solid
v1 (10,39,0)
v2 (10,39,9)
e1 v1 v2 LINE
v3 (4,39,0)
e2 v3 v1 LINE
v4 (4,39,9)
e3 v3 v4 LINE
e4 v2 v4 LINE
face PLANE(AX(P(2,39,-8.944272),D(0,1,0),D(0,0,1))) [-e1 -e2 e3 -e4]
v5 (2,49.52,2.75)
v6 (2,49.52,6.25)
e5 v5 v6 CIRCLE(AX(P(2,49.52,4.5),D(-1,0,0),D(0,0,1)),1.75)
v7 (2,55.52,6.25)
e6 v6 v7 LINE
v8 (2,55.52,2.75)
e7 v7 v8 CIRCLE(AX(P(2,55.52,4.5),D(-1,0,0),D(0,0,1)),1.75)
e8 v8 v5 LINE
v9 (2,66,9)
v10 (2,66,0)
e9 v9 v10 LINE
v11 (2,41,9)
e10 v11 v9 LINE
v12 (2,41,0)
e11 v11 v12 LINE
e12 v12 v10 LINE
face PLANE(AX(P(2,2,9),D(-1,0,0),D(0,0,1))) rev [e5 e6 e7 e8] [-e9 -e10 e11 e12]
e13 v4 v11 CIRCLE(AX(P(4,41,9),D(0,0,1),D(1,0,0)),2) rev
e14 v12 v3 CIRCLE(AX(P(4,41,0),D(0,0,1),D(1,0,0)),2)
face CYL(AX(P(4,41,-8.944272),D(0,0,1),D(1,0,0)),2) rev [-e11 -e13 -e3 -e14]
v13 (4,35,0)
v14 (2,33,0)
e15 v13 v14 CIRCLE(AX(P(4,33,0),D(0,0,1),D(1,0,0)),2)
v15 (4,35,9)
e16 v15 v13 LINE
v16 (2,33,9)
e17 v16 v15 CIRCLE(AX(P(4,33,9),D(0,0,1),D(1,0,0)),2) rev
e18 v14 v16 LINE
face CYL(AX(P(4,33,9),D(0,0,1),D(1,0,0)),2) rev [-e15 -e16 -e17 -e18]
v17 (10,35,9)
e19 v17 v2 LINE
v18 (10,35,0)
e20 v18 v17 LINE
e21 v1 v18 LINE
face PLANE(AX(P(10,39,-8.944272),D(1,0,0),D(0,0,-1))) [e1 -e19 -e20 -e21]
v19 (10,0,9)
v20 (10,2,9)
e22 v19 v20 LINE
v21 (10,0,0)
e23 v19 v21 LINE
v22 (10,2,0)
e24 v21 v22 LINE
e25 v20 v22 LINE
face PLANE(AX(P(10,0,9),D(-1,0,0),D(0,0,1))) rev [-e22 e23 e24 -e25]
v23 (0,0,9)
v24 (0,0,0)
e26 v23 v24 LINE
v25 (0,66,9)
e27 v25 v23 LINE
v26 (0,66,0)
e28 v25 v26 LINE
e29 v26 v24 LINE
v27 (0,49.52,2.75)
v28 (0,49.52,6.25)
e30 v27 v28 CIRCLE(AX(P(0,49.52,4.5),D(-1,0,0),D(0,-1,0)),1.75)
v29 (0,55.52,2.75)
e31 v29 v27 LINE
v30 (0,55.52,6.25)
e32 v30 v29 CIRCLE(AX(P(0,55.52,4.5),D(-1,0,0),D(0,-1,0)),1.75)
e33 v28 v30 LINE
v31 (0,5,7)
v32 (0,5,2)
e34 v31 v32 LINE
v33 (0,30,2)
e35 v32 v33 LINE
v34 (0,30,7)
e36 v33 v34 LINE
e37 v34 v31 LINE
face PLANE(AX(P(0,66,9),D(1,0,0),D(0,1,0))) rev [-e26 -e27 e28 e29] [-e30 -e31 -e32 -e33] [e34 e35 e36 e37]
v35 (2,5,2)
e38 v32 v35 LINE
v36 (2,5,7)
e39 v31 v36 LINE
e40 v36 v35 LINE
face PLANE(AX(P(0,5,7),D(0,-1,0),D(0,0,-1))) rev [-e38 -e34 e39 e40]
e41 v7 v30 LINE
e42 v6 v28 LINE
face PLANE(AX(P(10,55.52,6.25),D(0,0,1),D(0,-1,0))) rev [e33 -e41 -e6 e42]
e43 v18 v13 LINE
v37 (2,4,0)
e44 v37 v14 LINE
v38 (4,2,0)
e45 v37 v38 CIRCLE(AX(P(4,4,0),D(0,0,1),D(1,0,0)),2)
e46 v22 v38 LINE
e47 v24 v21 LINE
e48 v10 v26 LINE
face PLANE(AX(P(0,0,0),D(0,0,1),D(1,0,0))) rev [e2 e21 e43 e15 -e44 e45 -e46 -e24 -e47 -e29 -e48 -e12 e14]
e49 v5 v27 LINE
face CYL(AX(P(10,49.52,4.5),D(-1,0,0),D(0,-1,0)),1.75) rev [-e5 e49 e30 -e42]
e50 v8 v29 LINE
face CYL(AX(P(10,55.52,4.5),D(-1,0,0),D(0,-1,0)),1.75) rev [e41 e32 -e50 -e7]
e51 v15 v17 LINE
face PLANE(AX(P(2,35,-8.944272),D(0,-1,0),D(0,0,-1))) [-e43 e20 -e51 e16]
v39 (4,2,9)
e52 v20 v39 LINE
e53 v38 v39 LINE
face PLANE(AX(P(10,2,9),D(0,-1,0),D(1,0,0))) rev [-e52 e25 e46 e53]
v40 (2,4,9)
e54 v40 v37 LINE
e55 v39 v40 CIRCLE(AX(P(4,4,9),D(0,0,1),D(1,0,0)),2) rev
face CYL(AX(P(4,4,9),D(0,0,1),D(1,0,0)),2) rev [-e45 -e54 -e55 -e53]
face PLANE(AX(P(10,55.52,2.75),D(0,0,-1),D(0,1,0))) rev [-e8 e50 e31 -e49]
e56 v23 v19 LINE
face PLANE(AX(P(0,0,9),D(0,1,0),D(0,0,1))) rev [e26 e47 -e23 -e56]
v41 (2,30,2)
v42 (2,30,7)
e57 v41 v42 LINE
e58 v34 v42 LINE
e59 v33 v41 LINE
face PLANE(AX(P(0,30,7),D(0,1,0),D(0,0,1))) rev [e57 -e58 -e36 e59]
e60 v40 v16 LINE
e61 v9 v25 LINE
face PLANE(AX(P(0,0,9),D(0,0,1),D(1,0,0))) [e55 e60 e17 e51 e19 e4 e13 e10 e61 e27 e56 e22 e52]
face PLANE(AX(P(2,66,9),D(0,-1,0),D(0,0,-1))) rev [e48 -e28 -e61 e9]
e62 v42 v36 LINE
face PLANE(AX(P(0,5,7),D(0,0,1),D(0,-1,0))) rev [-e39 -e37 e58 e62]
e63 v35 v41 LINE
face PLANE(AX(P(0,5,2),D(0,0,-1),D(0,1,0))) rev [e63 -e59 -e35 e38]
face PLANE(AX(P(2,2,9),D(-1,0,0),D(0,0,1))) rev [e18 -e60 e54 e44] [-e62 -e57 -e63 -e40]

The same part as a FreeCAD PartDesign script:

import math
import FreeCAD as App
import Part
import Sketcher

V = App.Vector
Q = App.Units.Quantity


def edges_at(feature, points):
    """Names of the edges that pass closest to the given points."""
    edges = feature.Shape.Edges
    near = lambda p: min(range(len(edges)), key=lambda i: edges[i].distToShape(Part.Vertex(*p))[0])
    return sorted({f"Edge{near(p) + 1}" for p in points})

doc = App.newDocument("Part")
body = doc.addObject("PartDesign::Body", "Body")

sketch1 = body.newObject("Sketcher::SketchObject", "Sketch")
sketch1.AttachmentSupport = (doc.getObject("XY_Plane"), [""])
sketch1.MapMode = "FlatFace"
sketch1.addGeometry([
    Part.LineSegment(V(0, 0, 0), V(10, 0, 0)),
    Part.LineSegment(V(10, 0, 0), V(10, 2, 0)),
    Part.LineSegment(V(10, 2, 0), V(2, 2, 0)),
    Part.LineSegment(V(2, 2, 0), V(2, 66, 0)),
    Part.LineSegment(V(2, 66, 0), V(0, 66, 0)),
    Part.LineSegment(V(0, 66, 0), V(0, 0, 0)),
], False)
sketch1.addConstraint([
    Sketcher.Constraint("Coincident", 0, 2, 1, 1),
    Sketcher.Constraint("Coincident", 1, 2, 2, 1),
    Sketcher.Constraint("Coincident", 2, 2, 3, 1),
    Sketcher.Constraint("Coincident", 3, 2, 4, 1),
    Sketcher.Constraint("Coincident", 4, 2, 5, 1),
    Sketcher.Constraint("Coincident", 5, 2, 0, 1),
    Sketcher.Constraint("Horizontal", 0),
    Sketcher.Constraint("Vertical", 1),
    Sketcher.Constraint("Horizontal", 2),
    Sketcher.Constraint("Vertical", 3),
    Sketcher.Constraint("Horizontal", 4),
    Sketcher.Constraint("Vertical", 5),
    Sketcher.Constraint("Coincident", 5, 2, -1, 1),
    Sketcher.Constraint("Equal", 4, 1),
    Sketcher.Constraint("DistanceX", 0, 1, 0, 2, Q("10 mm")),
    Sketcher.Constraint("DistanceX", 2, 2, 2, 1, Q("8 mm")),
    Sketcher.Constraint("DistanceY", 3, 1, 3, 2, Q("64 mm")),
])
pad1 = body.newObject("PartDesign::Pad", "Pad")
pad1.Profile = sketch1
pad1.Length = 9

sketch2 = body.newObject("Sketcher::SketchObject", "Sketch001")
sketch2.AttachmentSupport = (doc.getObject("YZ_Plane"), [""])
sketch2.MapMode = "FlatFace"
sketch2.addGeometry([
    Part.LineSegment(V(49.52, 6.25, 0), V(55.52, 6.25, 0)),
    Part.ArcOfCircle(Part.Circle(V(55.52, 4.5, 0), V(0, 0, 1), 1.75), math.radians(-90), math.radians(90)),
    Part.LineSegment(V(55.52, 2.75, 0), V(49.52, 2.75, 0)),
    Part.ArcOfCircle(Part.Circle(V(49.52, 4.5, 0), V(0, 0, 1), 1.75), math.radians(90), math.radians(270)),
], False)
sketch2.addConstraint([
    Sketcher.Constraint("Tangent", 0, 2, 1, 2),
    Sketcher.Constraint("Tangent", 1, 1, 2, 1),
    Sketcher.Constraint("Tangent", 2, 2, 3, 2),
    Sketcher.Constraint("Tangent", 3, 1, 0, 1),
    Sketcher.Constraint("Horizontal", 0),
    Sketcher.Constraint("Horizontal", 2),
    Sketcher.Constraint("DistanceX", 0, 1, 0, 2, Q("6 mm")),
    Sketcher.Constraint("Radius", 1, Q("1.75 mm")),
    Sketcher.Constraint("DistanceY", -1, 1, 1, 3, Q("4.5 mm")),
    Sketcher.Constraint("DistanceX", -1, 1, 1, 3, Q("55.52 mm")),
])
pocket1 = body.newObject("PartDesign::Pocket", "Pocket")
pocket1.Profile = sketch2
pocket1.Type = "ThroughAll"
pocket1.Reversed = True

sketch3 = body.newObject("Sketcher::SketchObject", "Sketch002")
sketch3.AttachmentSupport = (doc.getObject("YZ_Plane"), [""])
sketch3.MapMode = "FlatFace"
sketch3.AttachmentOffset = App.Placement(V(0, 0, 2), App.Rotation())
sketch3.addGeometry([
    Part.LineSegment(V(30, 7, 0), V(5, 7, 0)),
    Part.LineSegment(V(5, 7, 0), V(5, 2, 0)),
    Part.LineSegment(V(5, 2, 0), V(30, 2, 0)),
    Part.LineSegment(V(30, 2, 0), V(30, 7, 0)),
], False)
sketch3.addConstraint([
    Sketcher.Constraint("Coincident", 0, 2, 1, 1),
    Sketcher.Constraint("Coincident", 1, 2, 2, 1),
    Sketcher.Constraint("Coincident", 2, 2, 3, 1),
    Sketcher.Constraint("Coincident", 3, 2, 0, 1),
    Sketcher.Constraint("Horizontal", 0),
    Sketcher.Constraint("Vertical", 1),
    Sketcher.Constraint("Horizontal", 2),
    Sketcher.Constraint("Vertical", 3),
    Sketcher.Constraint("DistanceX", 0, 2, 0, 1, Q("25 mm")),
    Sketcher.Constraint("DistanceY", 1, 2, 1, 1, Q("5 mm")),
    Sketcher.Constraint("DistanceX", -1, 1, 0, 2, Q("5 mm")),
    Sketcher.Constraint("DistanceY", -1, 1, 0, 2, Q("7 mm")),
])
pocket2 = body.newObject("PartDesign::Pocket", "Pocket001")
pocket2.Profile = sketch3
pocket2.Type = "ThroughAll"
doc.recompute()

fillet = body.newObject("PartDesign::Fillet", "Fillet")
fillet.Base = (pocket2, edges_at(pocket2, [(2, 2, 4.5)]))
fillet.Radius = 2

sketch4 = body.newObject("Sketcher::SketchObject", "Sketch003")
sketch4.AttachmentSupport = (doc.getObject("XY_Plane"), [""])
sketch4.MapMode = "FlatFace"
sketch4.AttachmentOffset = App.Placement(V(0, 0, 9), App.Rotation())
sketch4.addGeometry([
    Part.LineSegment(V(2, 39, 0), V(2, 35, 0)),
    Part.LineSegment(V(2, 35, 0), V(10, 35, 0)),
    Part.LineSegment(V(10, 35, 0), V(10, 39, 0)),
    Part.LineSegment(V(10, 39, 0), V(2, 39, 0)),
], False)
sketch4.addConstraint([
    Sketcher.Constraint("Coincident", 0, 2, 1, 1),
    Sketcher.Constraint("Coincident", 1, 2, 2, 1),
    Sketcher.Constraint("Coincident", 2, 2, 3, 1),
    Sketcher.Constraint("Coincident", 3, 2, 0, 1),
    Sketcher.Constraint("Vertical", 0),
    Sketcher.Constraint("Horizontal", 1),
    Sketcher.Constraint("Vertical", 2),
    Sketcher.Constraint("Horizontal", 3),
    Sketcher.Constraint("DistanceX", 1, 1, 1, 2, Q("8 mm")),
    Sketcher.Constraint("DistanceY", 0, 2, 0, 1, Q("4 mm")),
    Sketcher.Constraint("DistanceX", -1, 1, 0, 2, Q("2 mm")),
    Sketcher.Constraint("DistanceY", -1, 1, 0, 2, Q("35 mm")),
])
pad2 = body.newObject("PartDesign::Pad", "Pad001")
pad2.Profile = sketch4
pad2.Length = 9
pad2.Reversed = True
doc.recompute()

fillet2 = body.newObject("PartDesign::Fillet", "Fillet001")
fillet2.Base = (pad2, edges_at(pad2, [(2, 39, 4.5), (2, 35, 4.5)]))
fillet2.Radius = 2

doc.recompute()
